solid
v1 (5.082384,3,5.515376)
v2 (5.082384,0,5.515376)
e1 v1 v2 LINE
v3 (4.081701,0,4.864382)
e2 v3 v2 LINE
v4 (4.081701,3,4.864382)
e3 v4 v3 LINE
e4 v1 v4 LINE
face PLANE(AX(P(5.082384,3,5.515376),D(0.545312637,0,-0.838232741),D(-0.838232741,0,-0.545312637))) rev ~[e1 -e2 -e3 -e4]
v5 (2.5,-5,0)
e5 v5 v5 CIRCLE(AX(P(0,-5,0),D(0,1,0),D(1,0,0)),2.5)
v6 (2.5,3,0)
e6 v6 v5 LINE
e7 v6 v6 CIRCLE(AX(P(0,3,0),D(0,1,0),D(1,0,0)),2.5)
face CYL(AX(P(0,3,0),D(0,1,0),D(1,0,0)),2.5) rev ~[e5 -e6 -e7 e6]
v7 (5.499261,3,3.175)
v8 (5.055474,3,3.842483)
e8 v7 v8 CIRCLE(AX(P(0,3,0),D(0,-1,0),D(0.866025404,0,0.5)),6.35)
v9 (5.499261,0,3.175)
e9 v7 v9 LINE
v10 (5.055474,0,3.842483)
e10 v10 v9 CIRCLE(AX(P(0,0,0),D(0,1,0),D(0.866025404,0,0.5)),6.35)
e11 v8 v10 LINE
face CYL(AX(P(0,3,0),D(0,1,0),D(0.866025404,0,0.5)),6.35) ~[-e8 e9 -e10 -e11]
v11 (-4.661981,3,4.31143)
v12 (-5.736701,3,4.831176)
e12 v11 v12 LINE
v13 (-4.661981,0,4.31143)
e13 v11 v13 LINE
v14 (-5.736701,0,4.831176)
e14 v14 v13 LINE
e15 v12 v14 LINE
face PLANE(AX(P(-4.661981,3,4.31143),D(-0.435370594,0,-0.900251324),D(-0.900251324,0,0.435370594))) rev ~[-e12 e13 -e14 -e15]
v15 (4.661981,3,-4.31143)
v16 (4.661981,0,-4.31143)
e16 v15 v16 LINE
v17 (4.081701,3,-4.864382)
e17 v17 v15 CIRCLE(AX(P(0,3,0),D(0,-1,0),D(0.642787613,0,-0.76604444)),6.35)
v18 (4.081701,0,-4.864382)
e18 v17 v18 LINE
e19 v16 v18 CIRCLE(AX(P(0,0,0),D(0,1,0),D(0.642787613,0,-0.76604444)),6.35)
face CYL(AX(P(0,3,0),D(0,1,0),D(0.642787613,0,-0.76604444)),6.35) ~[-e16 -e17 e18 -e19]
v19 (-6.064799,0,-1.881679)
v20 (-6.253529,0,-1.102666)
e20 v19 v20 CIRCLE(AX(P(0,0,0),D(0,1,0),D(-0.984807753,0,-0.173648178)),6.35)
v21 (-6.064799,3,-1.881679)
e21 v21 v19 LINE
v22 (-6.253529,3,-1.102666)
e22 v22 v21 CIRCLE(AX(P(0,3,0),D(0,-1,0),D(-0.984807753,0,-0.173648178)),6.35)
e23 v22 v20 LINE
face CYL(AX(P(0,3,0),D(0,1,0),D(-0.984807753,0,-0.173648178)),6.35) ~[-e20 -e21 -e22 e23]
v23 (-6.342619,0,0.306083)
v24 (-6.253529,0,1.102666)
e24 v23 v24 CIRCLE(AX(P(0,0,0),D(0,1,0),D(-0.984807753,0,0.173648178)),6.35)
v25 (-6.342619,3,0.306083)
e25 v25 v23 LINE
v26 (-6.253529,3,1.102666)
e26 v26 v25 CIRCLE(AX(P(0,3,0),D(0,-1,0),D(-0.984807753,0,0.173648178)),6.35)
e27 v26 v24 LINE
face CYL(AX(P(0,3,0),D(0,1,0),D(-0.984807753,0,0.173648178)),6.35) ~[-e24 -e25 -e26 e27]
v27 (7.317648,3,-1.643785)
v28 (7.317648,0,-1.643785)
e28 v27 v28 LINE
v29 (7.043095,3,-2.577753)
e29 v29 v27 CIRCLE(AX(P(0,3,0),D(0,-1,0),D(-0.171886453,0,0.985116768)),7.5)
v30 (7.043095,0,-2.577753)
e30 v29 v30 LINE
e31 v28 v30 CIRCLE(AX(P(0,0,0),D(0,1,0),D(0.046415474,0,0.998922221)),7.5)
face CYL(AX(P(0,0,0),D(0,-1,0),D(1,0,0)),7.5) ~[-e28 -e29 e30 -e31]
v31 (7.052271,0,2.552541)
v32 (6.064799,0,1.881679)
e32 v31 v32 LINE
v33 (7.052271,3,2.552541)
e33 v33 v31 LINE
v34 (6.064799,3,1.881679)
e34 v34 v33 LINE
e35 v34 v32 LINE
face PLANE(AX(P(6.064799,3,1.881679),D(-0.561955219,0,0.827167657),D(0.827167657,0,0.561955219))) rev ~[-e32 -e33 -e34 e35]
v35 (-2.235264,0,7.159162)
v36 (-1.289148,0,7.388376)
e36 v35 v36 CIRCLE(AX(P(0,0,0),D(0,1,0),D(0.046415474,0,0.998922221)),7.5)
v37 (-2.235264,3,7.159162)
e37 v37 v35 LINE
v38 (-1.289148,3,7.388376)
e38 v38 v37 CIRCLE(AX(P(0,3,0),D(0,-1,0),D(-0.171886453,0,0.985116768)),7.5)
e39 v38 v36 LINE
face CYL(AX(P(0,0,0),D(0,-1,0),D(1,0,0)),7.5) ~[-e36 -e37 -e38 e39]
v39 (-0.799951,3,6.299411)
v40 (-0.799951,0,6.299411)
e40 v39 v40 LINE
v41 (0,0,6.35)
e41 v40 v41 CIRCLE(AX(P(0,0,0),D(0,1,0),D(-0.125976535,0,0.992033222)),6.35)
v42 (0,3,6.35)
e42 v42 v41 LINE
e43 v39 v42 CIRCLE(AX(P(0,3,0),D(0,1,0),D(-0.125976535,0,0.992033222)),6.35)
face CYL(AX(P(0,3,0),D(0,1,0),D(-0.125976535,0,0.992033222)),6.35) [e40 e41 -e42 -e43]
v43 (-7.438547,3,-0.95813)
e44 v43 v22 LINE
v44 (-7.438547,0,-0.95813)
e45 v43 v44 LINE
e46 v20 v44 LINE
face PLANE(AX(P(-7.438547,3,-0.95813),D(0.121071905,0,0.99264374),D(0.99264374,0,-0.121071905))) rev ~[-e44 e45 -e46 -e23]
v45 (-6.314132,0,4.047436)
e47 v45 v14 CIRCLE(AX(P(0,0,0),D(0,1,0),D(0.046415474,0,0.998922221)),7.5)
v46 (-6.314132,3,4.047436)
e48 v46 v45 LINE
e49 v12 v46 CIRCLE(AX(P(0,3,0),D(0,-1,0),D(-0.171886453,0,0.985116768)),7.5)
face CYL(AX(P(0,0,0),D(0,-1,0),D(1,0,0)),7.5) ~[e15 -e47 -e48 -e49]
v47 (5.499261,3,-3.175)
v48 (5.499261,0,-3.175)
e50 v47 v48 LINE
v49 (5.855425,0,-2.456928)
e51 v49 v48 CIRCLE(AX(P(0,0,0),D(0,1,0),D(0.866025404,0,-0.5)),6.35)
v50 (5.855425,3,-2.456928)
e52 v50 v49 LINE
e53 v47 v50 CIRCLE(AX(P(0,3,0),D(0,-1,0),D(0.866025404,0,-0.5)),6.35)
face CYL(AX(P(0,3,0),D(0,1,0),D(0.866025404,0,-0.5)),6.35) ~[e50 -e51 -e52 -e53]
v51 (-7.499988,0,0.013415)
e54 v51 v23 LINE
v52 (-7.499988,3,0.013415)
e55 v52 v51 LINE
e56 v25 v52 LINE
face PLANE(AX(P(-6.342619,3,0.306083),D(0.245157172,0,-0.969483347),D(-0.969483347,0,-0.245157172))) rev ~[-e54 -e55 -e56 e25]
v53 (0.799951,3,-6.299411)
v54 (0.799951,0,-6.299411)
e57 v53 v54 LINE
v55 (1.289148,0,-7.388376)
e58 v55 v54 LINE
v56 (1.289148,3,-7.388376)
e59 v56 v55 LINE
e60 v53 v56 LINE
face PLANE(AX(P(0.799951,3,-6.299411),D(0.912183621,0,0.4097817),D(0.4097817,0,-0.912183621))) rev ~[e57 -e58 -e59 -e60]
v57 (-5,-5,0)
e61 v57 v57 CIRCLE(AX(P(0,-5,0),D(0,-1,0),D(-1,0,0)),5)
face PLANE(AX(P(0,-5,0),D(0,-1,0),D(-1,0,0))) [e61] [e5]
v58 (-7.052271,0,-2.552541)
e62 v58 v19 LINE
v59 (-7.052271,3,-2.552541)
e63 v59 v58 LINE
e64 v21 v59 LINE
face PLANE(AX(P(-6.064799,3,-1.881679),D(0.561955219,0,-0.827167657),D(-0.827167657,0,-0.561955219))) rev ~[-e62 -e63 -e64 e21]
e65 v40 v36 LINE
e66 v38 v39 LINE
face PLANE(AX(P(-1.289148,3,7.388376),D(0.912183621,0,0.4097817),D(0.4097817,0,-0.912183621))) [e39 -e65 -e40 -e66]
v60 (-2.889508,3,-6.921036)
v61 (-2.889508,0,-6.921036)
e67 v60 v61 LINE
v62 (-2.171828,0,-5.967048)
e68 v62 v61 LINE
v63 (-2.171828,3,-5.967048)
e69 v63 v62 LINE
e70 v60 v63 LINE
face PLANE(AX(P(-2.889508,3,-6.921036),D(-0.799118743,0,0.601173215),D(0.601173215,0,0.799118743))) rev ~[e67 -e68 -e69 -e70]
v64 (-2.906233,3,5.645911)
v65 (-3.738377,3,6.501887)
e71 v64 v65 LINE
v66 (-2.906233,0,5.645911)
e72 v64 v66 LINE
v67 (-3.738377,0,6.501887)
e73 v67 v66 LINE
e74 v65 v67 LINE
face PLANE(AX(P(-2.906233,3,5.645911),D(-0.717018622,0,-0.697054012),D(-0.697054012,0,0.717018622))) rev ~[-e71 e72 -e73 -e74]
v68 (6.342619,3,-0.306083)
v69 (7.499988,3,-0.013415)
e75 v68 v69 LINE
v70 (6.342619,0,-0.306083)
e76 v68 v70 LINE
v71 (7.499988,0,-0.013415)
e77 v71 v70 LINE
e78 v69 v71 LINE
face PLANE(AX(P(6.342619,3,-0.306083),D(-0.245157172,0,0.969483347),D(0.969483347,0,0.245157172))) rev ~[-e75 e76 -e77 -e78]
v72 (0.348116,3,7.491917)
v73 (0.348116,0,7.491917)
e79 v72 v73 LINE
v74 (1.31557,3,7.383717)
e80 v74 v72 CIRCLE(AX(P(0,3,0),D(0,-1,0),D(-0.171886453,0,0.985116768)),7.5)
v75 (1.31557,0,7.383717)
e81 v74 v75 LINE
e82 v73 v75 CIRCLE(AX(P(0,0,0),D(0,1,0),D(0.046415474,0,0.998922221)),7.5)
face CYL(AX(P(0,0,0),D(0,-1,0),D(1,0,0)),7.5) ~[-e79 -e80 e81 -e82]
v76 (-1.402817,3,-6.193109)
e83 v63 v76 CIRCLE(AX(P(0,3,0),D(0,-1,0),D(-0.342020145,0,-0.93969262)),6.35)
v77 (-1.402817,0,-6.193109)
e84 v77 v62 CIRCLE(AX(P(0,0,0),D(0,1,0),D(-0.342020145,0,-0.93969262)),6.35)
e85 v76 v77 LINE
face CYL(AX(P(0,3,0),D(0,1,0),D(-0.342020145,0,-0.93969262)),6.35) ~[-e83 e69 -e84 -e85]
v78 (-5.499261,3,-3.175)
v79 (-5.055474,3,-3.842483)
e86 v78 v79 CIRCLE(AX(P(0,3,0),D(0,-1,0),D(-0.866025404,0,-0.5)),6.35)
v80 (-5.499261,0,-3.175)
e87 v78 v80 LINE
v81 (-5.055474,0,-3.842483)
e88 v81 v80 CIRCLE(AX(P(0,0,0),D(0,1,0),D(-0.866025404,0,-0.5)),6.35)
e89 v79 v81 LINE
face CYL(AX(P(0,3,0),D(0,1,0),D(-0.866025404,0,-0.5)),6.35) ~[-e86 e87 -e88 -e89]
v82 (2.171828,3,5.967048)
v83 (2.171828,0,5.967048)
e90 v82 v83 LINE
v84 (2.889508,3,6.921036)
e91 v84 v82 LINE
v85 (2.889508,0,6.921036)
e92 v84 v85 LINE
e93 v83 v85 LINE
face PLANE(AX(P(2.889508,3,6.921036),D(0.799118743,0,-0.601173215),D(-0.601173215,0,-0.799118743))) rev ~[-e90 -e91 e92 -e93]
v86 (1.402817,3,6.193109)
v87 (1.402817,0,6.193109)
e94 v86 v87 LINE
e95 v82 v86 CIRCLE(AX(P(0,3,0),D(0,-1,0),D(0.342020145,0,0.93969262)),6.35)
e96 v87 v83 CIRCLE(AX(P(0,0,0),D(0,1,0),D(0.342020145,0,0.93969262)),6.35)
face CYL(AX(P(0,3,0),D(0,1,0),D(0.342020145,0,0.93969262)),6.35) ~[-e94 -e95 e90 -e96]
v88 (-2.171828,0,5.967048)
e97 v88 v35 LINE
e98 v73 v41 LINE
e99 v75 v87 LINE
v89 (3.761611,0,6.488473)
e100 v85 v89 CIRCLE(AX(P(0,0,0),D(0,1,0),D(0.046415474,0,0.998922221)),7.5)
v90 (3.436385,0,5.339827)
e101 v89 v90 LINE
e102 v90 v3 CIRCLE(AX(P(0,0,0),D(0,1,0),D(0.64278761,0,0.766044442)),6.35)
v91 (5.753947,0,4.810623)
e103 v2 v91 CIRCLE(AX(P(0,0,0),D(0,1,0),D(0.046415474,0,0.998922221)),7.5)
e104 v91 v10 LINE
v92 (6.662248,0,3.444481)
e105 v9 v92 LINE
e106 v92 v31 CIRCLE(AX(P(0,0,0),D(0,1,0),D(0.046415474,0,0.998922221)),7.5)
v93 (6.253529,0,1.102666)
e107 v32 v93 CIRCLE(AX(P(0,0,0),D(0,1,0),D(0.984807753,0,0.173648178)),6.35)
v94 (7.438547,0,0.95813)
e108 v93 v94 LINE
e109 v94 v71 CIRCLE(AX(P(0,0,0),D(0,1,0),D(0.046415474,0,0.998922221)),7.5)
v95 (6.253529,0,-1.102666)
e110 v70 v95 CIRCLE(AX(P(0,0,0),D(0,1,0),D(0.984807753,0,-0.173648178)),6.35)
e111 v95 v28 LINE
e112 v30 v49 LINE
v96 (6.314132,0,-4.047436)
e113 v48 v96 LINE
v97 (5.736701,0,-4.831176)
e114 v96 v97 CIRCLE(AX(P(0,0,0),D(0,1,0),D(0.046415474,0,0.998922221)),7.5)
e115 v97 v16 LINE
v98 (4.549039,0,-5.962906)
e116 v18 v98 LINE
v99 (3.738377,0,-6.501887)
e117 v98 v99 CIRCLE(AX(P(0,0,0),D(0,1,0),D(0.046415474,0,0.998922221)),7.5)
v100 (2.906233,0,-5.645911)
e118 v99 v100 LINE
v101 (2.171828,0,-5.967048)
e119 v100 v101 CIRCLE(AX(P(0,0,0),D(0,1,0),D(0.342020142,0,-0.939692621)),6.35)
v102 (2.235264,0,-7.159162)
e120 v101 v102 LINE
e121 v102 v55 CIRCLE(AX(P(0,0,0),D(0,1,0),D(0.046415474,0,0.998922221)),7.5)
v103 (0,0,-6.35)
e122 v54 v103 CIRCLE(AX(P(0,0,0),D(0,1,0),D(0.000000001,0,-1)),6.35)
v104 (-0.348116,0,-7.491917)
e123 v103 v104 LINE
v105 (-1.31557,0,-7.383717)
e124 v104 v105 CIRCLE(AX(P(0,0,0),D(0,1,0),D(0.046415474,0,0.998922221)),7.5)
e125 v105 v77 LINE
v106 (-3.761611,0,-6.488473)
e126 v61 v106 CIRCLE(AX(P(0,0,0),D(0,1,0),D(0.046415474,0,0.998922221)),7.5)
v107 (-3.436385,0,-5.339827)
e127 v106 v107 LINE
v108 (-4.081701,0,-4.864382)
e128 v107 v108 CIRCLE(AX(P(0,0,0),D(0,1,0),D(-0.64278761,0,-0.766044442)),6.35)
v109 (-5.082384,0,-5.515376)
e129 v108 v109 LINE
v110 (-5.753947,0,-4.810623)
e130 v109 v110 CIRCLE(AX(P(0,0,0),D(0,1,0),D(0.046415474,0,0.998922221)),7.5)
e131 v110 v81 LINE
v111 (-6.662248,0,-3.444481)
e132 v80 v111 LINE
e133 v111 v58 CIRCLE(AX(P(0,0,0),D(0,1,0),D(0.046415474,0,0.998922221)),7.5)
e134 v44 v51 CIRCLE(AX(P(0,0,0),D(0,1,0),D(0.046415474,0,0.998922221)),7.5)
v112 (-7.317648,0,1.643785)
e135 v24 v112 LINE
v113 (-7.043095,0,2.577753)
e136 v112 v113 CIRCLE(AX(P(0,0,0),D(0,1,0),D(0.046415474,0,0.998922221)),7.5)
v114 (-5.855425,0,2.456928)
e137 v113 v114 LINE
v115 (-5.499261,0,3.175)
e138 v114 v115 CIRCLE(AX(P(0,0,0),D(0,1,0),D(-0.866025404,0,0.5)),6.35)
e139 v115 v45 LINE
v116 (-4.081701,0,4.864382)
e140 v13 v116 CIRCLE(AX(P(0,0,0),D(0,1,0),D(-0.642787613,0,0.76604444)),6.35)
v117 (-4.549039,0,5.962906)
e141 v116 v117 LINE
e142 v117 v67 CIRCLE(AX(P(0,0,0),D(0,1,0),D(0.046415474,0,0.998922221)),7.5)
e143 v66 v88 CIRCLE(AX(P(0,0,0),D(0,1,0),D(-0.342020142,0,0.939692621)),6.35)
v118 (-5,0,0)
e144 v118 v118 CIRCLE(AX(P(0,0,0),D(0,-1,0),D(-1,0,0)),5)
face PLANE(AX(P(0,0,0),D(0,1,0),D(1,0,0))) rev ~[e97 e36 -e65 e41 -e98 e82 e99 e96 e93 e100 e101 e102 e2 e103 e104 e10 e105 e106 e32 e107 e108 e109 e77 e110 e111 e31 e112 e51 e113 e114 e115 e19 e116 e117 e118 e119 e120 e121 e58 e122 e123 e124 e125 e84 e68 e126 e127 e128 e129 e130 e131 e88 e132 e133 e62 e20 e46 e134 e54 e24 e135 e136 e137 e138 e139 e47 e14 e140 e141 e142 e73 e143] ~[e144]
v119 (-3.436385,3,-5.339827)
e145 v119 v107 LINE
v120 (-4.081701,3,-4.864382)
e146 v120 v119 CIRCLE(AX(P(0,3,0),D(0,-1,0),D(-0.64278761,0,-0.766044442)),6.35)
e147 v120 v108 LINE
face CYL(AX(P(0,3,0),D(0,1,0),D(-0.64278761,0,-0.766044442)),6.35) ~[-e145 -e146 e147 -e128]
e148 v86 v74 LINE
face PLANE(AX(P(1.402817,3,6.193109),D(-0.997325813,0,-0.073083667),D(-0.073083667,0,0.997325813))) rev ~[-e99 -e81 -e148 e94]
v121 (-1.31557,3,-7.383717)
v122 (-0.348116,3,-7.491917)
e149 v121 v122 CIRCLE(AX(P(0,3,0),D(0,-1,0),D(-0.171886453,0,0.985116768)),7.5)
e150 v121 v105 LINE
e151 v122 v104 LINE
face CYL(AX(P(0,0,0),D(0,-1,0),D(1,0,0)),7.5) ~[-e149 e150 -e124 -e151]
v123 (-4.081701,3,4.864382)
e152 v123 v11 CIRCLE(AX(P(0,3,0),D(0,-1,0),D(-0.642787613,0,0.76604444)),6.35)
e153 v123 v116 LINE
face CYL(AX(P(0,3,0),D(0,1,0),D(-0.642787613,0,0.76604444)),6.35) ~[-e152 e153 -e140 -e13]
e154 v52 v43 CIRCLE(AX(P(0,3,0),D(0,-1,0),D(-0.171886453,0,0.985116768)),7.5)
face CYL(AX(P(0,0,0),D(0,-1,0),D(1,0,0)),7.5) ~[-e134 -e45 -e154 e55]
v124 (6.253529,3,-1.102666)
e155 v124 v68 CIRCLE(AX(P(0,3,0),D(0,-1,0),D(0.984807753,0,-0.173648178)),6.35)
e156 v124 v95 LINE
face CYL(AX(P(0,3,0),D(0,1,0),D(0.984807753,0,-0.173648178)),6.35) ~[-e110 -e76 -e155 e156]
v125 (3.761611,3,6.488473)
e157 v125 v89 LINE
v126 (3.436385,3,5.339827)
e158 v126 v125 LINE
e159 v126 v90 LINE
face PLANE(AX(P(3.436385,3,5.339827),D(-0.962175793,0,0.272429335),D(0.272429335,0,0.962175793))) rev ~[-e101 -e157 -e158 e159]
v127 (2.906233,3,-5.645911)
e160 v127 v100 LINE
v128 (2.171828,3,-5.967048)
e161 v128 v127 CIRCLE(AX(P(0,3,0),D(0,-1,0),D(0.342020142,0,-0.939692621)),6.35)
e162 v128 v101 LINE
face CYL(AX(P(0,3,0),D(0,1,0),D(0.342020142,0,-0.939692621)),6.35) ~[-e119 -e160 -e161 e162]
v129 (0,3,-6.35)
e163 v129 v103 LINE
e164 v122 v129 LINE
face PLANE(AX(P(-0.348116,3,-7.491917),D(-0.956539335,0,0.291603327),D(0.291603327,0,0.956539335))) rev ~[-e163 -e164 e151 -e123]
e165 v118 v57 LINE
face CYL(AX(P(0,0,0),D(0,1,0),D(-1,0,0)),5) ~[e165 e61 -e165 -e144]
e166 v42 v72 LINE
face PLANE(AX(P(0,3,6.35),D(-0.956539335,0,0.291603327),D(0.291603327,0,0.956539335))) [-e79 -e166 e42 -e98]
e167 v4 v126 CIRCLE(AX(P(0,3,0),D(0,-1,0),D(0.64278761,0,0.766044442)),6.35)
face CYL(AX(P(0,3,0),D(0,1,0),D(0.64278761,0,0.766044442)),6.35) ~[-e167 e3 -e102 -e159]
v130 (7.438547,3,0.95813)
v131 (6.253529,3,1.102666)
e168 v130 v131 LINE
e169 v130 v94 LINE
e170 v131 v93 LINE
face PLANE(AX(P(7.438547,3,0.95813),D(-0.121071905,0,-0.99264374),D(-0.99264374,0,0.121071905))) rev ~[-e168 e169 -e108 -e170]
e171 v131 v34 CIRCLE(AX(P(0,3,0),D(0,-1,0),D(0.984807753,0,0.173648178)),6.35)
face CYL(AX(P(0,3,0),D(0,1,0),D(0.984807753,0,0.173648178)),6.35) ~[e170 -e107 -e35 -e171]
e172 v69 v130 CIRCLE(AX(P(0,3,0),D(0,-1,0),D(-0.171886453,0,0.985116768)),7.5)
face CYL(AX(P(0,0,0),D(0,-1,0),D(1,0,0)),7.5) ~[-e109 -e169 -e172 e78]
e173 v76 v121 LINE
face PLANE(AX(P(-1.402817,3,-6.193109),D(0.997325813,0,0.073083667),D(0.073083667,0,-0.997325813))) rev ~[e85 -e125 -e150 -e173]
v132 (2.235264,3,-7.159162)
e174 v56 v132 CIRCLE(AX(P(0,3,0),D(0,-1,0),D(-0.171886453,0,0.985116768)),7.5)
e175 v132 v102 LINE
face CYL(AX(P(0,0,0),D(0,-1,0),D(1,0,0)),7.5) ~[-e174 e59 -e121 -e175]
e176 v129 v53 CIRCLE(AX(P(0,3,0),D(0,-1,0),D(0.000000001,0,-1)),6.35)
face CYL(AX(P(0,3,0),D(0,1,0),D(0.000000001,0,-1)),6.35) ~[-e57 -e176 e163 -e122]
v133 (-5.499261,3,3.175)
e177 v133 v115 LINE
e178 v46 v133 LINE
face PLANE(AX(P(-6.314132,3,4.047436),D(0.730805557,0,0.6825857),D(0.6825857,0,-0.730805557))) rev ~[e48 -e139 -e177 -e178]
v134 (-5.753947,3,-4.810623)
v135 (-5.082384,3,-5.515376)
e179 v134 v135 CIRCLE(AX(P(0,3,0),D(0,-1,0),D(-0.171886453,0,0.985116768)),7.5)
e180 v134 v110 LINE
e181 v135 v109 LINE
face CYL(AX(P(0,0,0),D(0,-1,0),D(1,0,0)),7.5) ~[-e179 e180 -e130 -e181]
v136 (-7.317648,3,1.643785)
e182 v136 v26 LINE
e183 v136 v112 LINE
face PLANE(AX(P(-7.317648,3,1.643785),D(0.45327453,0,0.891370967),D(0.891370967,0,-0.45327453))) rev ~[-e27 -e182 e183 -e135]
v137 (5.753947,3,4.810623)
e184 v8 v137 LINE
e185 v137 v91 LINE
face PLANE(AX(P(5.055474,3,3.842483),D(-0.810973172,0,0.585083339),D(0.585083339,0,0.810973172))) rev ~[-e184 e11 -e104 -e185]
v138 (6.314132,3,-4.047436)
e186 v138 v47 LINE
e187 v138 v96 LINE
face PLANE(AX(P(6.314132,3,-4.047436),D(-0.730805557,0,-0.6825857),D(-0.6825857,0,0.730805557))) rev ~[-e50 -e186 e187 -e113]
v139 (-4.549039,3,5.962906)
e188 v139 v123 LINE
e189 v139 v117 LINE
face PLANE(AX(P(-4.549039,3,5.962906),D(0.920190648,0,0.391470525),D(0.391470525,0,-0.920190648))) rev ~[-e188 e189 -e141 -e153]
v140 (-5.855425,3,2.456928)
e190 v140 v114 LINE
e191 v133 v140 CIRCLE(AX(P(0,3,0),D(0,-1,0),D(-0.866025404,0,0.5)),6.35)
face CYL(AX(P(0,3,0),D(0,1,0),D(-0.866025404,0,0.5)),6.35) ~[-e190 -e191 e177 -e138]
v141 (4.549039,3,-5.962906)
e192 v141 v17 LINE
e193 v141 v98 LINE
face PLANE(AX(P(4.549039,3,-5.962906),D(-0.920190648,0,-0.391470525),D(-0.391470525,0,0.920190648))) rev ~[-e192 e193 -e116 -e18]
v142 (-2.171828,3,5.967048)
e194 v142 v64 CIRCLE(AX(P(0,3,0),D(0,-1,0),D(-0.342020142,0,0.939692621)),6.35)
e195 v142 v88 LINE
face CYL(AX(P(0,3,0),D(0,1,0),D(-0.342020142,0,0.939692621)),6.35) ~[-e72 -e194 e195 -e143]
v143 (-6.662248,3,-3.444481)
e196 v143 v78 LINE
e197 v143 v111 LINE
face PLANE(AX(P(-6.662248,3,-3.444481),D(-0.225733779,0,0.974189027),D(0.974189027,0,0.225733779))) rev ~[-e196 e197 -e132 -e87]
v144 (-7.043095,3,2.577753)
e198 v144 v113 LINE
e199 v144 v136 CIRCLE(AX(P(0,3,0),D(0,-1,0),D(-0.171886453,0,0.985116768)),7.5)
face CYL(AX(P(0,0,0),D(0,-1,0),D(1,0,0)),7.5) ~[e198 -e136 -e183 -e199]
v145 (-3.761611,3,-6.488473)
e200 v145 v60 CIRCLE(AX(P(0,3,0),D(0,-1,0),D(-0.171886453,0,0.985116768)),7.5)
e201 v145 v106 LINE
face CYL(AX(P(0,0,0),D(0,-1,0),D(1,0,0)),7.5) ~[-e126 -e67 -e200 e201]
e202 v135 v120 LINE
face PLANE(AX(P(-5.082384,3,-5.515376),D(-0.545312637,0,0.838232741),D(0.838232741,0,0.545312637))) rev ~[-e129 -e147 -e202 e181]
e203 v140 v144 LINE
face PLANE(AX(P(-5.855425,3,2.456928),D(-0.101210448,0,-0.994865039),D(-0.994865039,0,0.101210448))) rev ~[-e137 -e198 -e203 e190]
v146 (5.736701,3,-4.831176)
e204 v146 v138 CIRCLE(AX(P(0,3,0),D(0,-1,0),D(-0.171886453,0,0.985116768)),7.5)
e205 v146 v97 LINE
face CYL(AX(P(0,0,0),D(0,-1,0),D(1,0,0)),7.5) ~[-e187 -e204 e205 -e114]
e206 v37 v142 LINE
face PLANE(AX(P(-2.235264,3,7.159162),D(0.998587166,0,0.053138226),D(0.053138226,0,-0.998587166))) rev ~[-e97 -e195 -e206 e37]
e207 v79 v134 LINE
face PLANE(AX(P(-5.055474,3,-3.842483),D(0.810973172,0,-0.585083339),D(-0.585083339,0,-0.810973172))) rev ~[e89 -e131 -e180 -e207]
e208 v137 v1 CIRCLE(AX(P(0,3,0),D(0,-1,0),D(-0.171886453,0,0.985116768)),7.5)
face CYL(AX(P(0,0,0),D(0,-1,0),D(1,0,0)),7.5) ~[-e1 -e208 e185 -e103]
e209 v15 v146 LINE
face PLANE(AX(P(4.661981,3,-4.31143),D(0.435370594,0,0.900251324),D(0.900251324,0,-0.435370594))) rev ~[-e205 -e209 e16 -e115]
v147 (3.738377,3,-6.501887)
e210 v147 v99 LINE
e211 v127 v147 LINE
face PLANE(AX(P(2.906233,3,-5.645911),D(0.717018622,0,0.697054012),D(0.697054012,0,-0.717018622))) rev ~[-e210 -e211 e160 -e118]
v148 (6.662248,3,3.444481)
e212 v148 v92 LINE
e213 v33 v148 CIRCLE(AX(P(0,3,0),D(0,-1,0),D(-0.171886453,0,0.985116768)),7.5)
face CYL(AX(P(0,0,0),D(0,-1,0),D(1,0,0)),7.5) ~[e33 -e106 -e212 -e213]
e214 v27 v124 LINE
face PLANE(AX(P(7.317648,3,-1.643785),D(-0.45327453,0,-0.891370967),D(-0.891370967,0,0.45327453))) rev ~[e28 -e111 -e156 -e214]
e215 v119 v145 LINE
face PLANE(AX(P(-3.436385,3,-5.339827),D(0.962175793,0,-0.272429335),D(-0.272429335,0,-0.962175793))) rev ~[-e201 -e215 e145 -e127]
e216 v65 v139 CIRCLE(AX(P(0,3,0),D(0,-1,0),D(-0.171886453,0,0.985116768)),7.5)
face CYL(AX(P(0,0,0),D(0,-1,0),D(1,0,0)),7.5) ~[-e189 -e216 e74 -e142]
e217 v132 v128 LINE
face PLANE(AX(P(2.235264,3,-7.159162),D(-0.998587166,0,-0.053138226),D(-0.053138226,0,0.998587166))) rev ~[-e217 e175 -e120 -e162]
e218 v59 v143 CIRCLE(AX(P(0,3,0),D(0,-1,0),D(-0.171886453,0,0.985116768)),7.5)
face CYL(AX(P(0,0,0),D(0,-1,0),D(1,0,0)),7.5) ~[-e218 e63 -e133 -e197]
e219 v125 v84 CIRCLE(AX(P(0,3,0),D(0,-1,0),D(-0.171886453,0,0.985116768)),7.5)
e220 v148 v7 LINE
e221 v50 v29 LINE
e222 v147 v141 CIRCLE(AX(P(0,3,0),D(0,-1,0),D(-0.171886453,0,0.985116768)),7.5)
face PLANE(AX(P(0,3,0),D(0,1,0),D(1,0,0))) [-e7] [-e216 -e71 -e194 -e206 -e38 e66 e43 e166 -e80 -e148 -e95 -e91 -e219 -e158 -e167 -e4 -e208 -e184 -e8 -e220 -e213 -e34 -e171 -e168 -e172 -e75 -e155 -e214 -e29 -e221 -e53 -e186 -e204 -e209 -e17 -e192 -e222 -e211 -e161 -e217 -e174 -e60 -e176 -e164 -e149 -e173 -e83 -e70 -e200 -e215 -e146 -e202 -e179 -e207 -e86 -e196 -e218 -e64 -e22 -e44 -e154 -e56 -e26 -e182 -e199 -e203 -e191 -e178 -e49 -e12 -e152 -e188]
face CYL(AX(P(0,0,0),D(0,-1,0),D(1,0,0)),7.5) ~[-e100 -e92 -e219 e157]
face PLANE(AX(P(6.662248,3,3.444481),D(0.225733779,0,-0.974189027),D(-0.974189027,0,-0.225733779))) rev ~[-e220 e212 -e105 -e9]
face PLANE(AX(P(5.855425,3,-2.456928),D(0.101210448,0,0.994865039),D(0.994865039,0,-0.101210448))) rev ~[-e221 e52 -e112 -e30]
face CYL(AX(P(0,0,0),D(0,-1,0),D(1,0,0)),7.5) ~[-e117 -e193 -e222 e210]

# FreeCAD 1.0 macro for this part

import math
import FreeCAD as App
import Part
import Sketcher
Q = App.Units.Quantity

doc = App.newDocument("Part")
body = doc.addObject("PartDesign::Body", "Body")

sketch1 = body.newObject("Sketcher::SketchObject", "Sketch")
sketch1.AttachmentSupport = (doc.getObject("XZ_Plane"), [""])
sketch1.MapMode = "FlatFace"
sketch1.addGeometry(Part.Circle(App.Vector(0, 0, 0), App.Vector(0, 0, 1), 7.5), False)
sketch1.addConstraint([
    Sketcher.Constraint("Coincident", 0, 3, -1, 1),
    Sketcher.Constraint("Diameter", 0, Q("15 mm")),
])
pad1 = body.newObject("PartDesign::Pad", "Pad")
pad1.Profile = sketch1
pad1.Length = 3
pad1.Reversed = True

sketch2 = body.newObject("Sketcher::SketchObject", "Sketch001")
sketch2.AttachmentSupport = (doc.getObject("XZ_Plane"), [""])
sketch2.MapMode = "FlatFace"
sketch2.addGeometry(Part.Circle(App.Vector(0, 0, 0), App.Vector(0, 0, 1), 5), False)
sketch2.addConstraint([
    Sketcher.Constraint("Coincident", 0, 3, -1, 1),
    Sketcher.Constraint("Diameter", 0, Q("10 mm")),
])
pad2 = body.newObject("PartDesign::Pad", "Pad001")
pad2.Profile = sketch2
pad2.Length = 5

sketch3 = body.newObject("Sketcher::SketchObject", "Sketch002")
sketch3.AttachmentSupport = (doc.getObject("XZ_Plane"), [""])
sketch3.MapMode = "FlatFace"
sketch3.AttachmentOffset = App.Placement(App.Vector(0, 0, -3), App.Rotation())
sketch3.addGeometry(Part.Circle(App.Vector(0, 0, 0), App.Vector(0, 0, 1), 2.5), False)
sketch3.addConstraint([
    Sketcher.Constraint("Coincident", 0, 3, -1, 1),
    Sketcher.Constraint("Diameter", 0, Q("5 mm")),
])
pocket1 = body.newObject("PartDesign::Pocket", "Pocket")
pocket1.Profile = sketch3
pocket1.Type = "UpToFirst"
pocket1.Reversed = True

sketch4 = body.newObject("Sketcher::SketchObject", "Sketch003")
sketch4.AttachmentSupport = (doc.getObject("XZ_Plane"), [""])
sketch4.MapMode = "FlatFace"
sketch4.AttachmentOffset = App.Placement(App.Vector(0, 0, -3), App.Rotation())
sketch4.addGeometry([
    Part.LineSegment(App.Vector(-0.799951, 6.299411, 0), App.Vector(-1.289148, 7.388376, 0)),
    Part.ArcOfCircle(Part.Circle(App.Vector(0, 0, 0), App.Vector(0, 0, 1), 7.5), math.radians(87.339633), math.radians(99.89752)),
    Part.LineSegment(App.Vector(0.348116, 7.491917, 0), App.Vector(0, 6.35, 0)),
    Part.ArcOfCircle(Part.Circle(App.Vector(0, 0, 0), App.Vector(0, 0, 1), 6.35), math.radians(90), math.radians(97.237153)),
], False)
sketch4.addConstraint([
    Sketcher.Constraint("Coincident", 0, 2, 1, 2),
    Sketcher.Constraint("Coincident", 1, 1, 2, 1),
    Sketcher.Constraint("Coincident", 2, 2, 3, 1),
    Sketcher.Constraint("Coincident", 3, 2, 0, 1),
    Sketcher.Constraint("Coincident", 1, 3, -1, 1),
    Sketcher.Constraint("Coincident", 3, 3, -1, 1),
    Sketcher.Constraint("PointOnObject", 2, 2, -2),
    Sketcher.Constraint("Equal", 0, 2),
    Sketcher.Constraint("Radius", 1, Q("7.5 mm")),
    Sketcher.Constraint("Radius", 3, Q("6.35 mm")),
    Sketcher.Constraint("Distance", 0, Q("1.1938 mm")),
    Sketcher.Constraint("DistanceX", 0, 2, -1, 1, Q("1.289148 mm")),
])
pocket2 = body.newObject("PartDesign::Pocket", "Pocket001")
pocket2.Profile = sketch4
pocket2.Type = "UpToFirst"
pocket2.Reversed = True

sketch5 = body.newObject("Sketcher::SketchObject", "Sketch004")
sketch5.AttachmentSupport = (doc.getObject("XZ_Plane"), [""])
sketch5.MapMode = "FlatFace"
sketch5.AttachmentOffset = App.Placement(App.Vector(0, 0, -3), App.Rotation())
sketch5.addGeometry([
    Part.LineSegment(App.Vector(-2.235264, 7.159162, 0), App.Vector(-2.171828, 5.967048, 0)),
    Part.ArcOfCircle(Part.Circle(App.Vector(0, 0, 0), App.Vector(0, 0, 1), 6.35), math.radians(110), math.radians(117.237153)),
    Part.LineSegment(App.Vector(-2.906233, 5.645911, 0), App.Vector(-3.738377, 6.501887, 0)),
    Part.ArcOfCircle(Part.Circle(App.Vector(0, 0, 0), App.Vector(0, 0, 1), 7.5), math.radians(107.339633), math.radians(119.89752)),
], False)
sketch5.addConstraint([
    Sketcher.Constraint("Coincident", 0, 2, 1, 1),
    Sketcher.Constraint("Coincident", 1, 2, 2, 1),
    Sketcher.Constraint("Coincident", 2, 2, 3, 2),
    Sketcher.Constraint("Coincident", 3, 1, 0, 1),
    Sketcher.Constraint("Coincident", 1, 3, -1, 1),
    Sketcher.Constraint("Coincident", 3, 3, -1, 1),
    Sketcher.Constraint("Equal", 0, 2),
    Sketcher.Constraint("Radius", 3, Q("7.5 mm")),
    Sketcher.Constraint("Radius", 1, Q("6.35 mm")),
    Sketcher.Constraint("Distance", 0, Q("1.1938 mm")),
    Sketcher.Constraint("DistanceY", -1, 1, 0, 2, Q("5.967048 mm")),
    Sketcher.Constraint("DistanceY", -1, 1, 1, 2, Q("5.645911 mm")),
])
pocket3 = body.newObject("PartDesign::Pocket", "Pocket002")
pocket3.Profile = sketch5
pocket3.Type = "UpToFirst"
pocket3.Reversed = True

sketch6 = body.newObject("Sketcher::SketchObject", "Sketch005")
sketch6.AttachmentSupport = (doc.getObject("XZ_Plane"), [""])
sketch6.MapMode = "FlatFace"
sketch6.AttachmentOffset = App.Placement(App.Vector(0, 0, -3), App.Rotation())
sketch6.addGeometry([
    Part.LineSegment(App.Vector(-4.549039, 5.962906, 0), App.Vector(-4.081701, 4.864382, 0)),
    Part.ArcOfCircle(Part.Circle(App.Vector(0, 0, 0), App.Vector(0, 0, 1), 6.35), math.radians(130), math.radians(137.237153)),
    Part.LineSegment(App.Vector(-4.661981, 4.31143, 0), App.Vector(-5.736701, 4.831176, 0)),
    Part.ArcOfCircle(Part.Circle(App.Vector(0, 0, 0), App.Vector(0, 0, 1), 7.5), math.radians(127.339634), math.radians(139.897519)),
], False)
sketch6.addConstraint([
    Sketcher.Constraint("Coincident", 0, 2, 1, 1),
    Sketcher.Constraint("Coincident", 1, 2, 2, 1),
    Sketcher.Constraint("Coincident", 2, 2, 3, 2),
    Sketcher.Constraint("Coincident", 3, 1, 0, 1),
    Sketcher.Constraint("Coincident", 1, 3, -1, 1),
    Sketcher.Constraint("Coincident", 3, 3, -1, 1),
    Sketcher.Constraint("Equal", 0, 2),
    Sketcher.Constraint("Radius", 3, Q("7.5 mm")),
    Sketcher.Constraint("Radius", 1, Q("6.35 mm")),
    Sketcher.Constraint("DistanceX", 2, 2, 0, 2, Q("1.655 mm")),
    Sketcher.Constraint("Distance", 0, Q("1.1938 mm")),
    Sketcher.Constraint("DistanceX", 0, 2, -1, 1, Q("4.081701 mm")),
])
pocket4 = body.newObject("PartDesign::Pocket", "Pocket003")
pocket4.Profile = sketch6
pocket4.Type = "UpToFirst"
pocket4.Reversed = True

sketch7 = body.newObject("Sketcher::SketchObject", "Sketch006")
sketch7.AttachmentSupport = (doc.getObject("XZ_Plane"), [""])
sketch7.MapMode = "FlatFace"
sketch7.AttachmentOffset = App.Placement(App.Vector(0, 0, -3), App.Rotation())
sketch7.addGeometry([
    Part.LineSegment(App.Vector(-6.314132, 4.047436, 0), App.Vector(-5.499261, 3.175, 0)),
    Part.ArcOfCircle(Part.Circle(App.Vector(0, 0, 0), App.Vector(0, 0, 1), 6.35), math.radians(150), math.radians(157.237153)),
    Part.LineSegment(App.Vector(-5.855425, 2.456928, 0), App.Vector(-7.043095, 2.577753, 0)),
    Part.ArcOfCircle(Part.Circle(App.Vector(0, 0, 0), App.Vector(0, 0, 1), 7.5), math.radians(147.339633), math.radians(159.89752)),
], False)
sketch7.addConstraint([
    Sketcher.Constraint("Coincident", 0, 2, 1, 1),
    Sketcher.Constraint("Coincident", 1, 2, 2, 1),
    Sketcher.Constraint("Coincident", 2, 2, 3, 2),
    Sketcher.Constraint("Coincident", 3, 1, 0, 1),
    Sketcher.Constraint("Coincident", 1, 3, -1, 1),
    Sketcher.Constraint("Coincident", 3, 3, -1, 1),
    Sketcher.Constraint("Equal", 0, 2),
    Sketcher.Constraint("Radius", 3, Q("7.5 mm")),
    Sketcher.Constraint("Radius", 1, Q("6.35 mm")),
    Sketcher.Constraint("DistanceY", -1, 1, 0, 2, Q("3.175 mm")),
    Sketcher.Constraint("Distance", 0, Q("1.1938 mm")),
    Sketcher.Constraint("DistanceX", 2, 2, 1, 2, Q("1.18767 mm")),
])
pocket5 = body.newObject("PartDesign::Pocket", "Pocket004")
pocket5.Profile = sketch7
pocket5.Type = "UpToFirst"
pocket5.Reversed = True

sketch8 = body.newObject("Sketcher::SketchObject", "Sketch007")
sketch8.AttachmentSupport = (doc.getObject("XZ_Plane"), [""])
sketch8.MapMode = "FlatFace"
sketch8.AttachmentOffset = App.Placement(App.Vector(0, 0, -3), App.Rotation())
sketch8.addGeometry([
    Part.LineSegment(App.Vector(-7.317648, 1.643785, 0), App.Vector(-6.253529, 1.102666, 0)),
    Part.ArcOfCircle(Part.Circle(App.Vector(0, 0, 0), App.Vector(0, 0, 1), 6.35), math.radians(170), math.radians(177.237153)),
    Part.LineSegment(App.Vector(-6.342619, 0.306083, 0), App.Vector(-7.499988, 0.013415, 0)),
    Part.ArcOfCircle(Part.Circle(App.Vector(0, 0, 0), App.Vector(0, 0, 1), 7.5), math.radians(167.339633), math.radians(179.89752)),
], False)
sketch8.addConstraint([
    Sketcher.Constraint("Coincident", 0, 2, 1, 1),
    Sketcher.Constraint("Coincident", 1, 2, 2, 1),
    Sketcher.Constraint("Coincident", 2, 2, 3, 2),
    Sketcher.Constraint("Coincident", 3, 1, 0, 1),
    Sketcher.Constraint("Coincident", 1, 3, -1, 1),
    Sketcher.Constraint("Coincident", 3, 3, -1, 1),
    Sketcher.Constraint("Equal", 0, 2),
    Sketcher.Constraint("Radius", 3, Q("7.5 mm")),
    Sketcher.Constraint("Radius", 1, Q("6.35 mm")),
    Sketcher.Constraint("Distance", 0, Q("1.1938 mm")),
    Sketcher.Constraint("DistanceY", 1, 2, 3, 1, Q("1.337702 mm")),
    Sketcher.Constraint("DistanceX", 0, 2, -1, 1, Q("6.253529 mm")),
])
pocket6 = body.newObject("PartDesign::Pocket", "Pocket005")
pocket6.Profile = sketch8
pocket6.Type = "UpToFirst"
pocket6.Reversed = True

sketch9 = body.newObject("Sketcher::SketchObject", "Sketch008")
sketch9.AttachmentSupport = (doc.getObject("XZ_Plane"), [""])
sketch9.MapMode = "FlatFace"
sketch9.AttachmentOffset = App.Placement(App.Vector(0, 0, -3), App.Rotation())
sketch9.addGeometry([
    Part.LineSegment(App.Vector(-7.438547, -0.95813, 0), App.Vector(-6.253529, -1.102666, 0)),
    Part.ArcOfCircle(Part.Circle(App.Vector(0, 0, 0), App.Vector(0, 0, 1), 6.35), math.radians(-170), math.radians(-162.762847)),
    Part.LineSegment(App.Vector(-6.064799, -1.881679, 0), App.Vector(-7.052271, -2.552541, 0)),
    Part.ArcOfCircle(Part.Circle(App.Vector(0, 0, 0), App.Vector(0, 0, 1), 7.5), math.radians(-172.660367), math.radians(-160.10248)),
], False)
sketch9.addConstraint([
    Sketcher.Constraint("Coincident", 0, 2, 1, 1),
    Sketcher.Constraint("Coincident", 1, 2, 2, 1),
    Sketcher.Constraint("Coincident", 2, 2, 3, 2),
    Sketcher.Constraint("Coincident", 3, 1, 0, 1),
    Sketcher.Constraint("Coincident", 1, 3, -1, 1),
    Sketcher.Constraint("Coincident", 3, 3, -1, 1),
    Sketcher.Constraint("Equal", 0, 2),
    Sketcher.Constraint("Radius", 3, Q("7.5 mm")),
    Sketcher.Constraint("Radius", 1, Q("6.35 mm")),
    Sketcher.Constraint("Distance", 0, Q("1.1938 mm")),
    Sketcher.Constraint("DistanceX", 1, 2, -1, 1, Q("6.064799 mm")),
    Sketcher.Constraint("DistanceX", 0, 2, -1, 1, Q("6.253529 mm")),
])
pocket7 = body.newObject("PartDesign::Pocket", "Pocket006")
pocket7.Profile = sketch9
pocket7.Type = "UpToFirst"
pocket7.Reversed = True

sketch10 = body.newObject("Sketcher::SketchObject", "Sketch009")
sketch10.AttachmentSupport = (doc.getObject("XZ_Plane"), [""])
sketch10.MapMode = "FlatFace"
sketch10.AttachmentOffset = App.Placement(App.Vector(0, 0, -3), App.Rotation())
sketch10.addGeometry([
    Part.LineSegment(App.Vector(-6.662248, -3.444481, 0), App.Vector(-5.499261, -3.175, 0)),
    Part.ArcOfCircle(Part.Circle(App.Vector(0, 0, 0), App.Vector(0, 0, 1), 6.35), math.radians(-150), math.radians(-142.762847)),
    Part.LineSegment(App.Vector(-5.055474, -3.842483, 0), App.Vector(-5.753947, -4.810623, 0)),
    Part.ArcOfCircle(Part.Circle(App.Vector(0, 0, 0), App.Vector(0, 0, 1), 7.5), math.radians(-152.660367), math.radians(-140.10248)),
], False)
sketch10.addConstraint([
    Sketcher.Constraint("Coincident", 0, 2, 1, 1),
    Sketcher.Constraint("Coincident", 1, 2, 2, 1),
    Sketcher.Constraint("Coincident", 2, 2, 3, 2),
    Sketcher.Constraint("Coincident", 3, 1, 0, 1),
    Sketcher.Constraint("Coincident", 1, 3, -1, 1),
    Sketcher.Constraint("Coincident", 3, 3, -1, 1),
    Sketcher.Constraint("Equal", 0, 2),
    Sketcher.Constraint("Radius", 3, Q("7.5 mm")),
    Sketcher.Constraint("Radius", 1, Q("6.35 mm")),
    Sketcher.Constraint("DistanceY", 0, 2, -1, 1, Q("3.175 mm")),
    Sketcher.Constraint("Distance", 0, Q("1.1938 mm")),
    Sketcher.Constraint("DistanceX", 3, 1, 2, 2, Q("0.908301 mm")),
])
pocket8 = body.newObject("PartDesign::Pocket", "Pocket007")
pocket8.Profile = sketch10
pocket8.Type = "UpToFirst"
pocket8.Reversed = True

sketch11 = body.newObject("Sketcher::SketchObject", "Sketch010")
sketch11.AttachmentSupport = (doc.getObject("XZ_Plane"), [""])
sketch11.MapMode = "FlatFace"
sketch11.AttachmentOffset = App.Placement(App.Vector(0, 0, -3), App.Rotation())
sketch11.addGeometry([
    Part.LineSegment(App.Vector(-5.082384, -5.515376, 0), App.Vector(-4.081701, -4.864382, 0)),
    Part.ArcOfCircle(Part.Circle(App.Vector(0, 0, 0), App.Vector(0, 0, 1), 6.35), math.radians(-130), math.radians(-122.762847)),
    Part.LineSegment(App.Vector(-3.436385, -5.339827, 0), App.Vector(-3.761611, -6.488473, 0)),
    Part.ArcOfCircle(Part.Circle(App.Vector(0, 0, 0), App.Vector(0, 0, 1), 7.5), math.radians(-132.660367), math.radians(-120.10248)),
], False)
sketch11.addConstraint([
    Sketcher.Constraint("Coincident", 0, 2, 1, 1),
    Sketcher.Constraint("Coincident", 1, 2, 2, 1),
    Sketcher.Constraint("Coincident", 2, 2, 3, 2),
    Sketcher.Constraint("Coincident", 3, 1, 0, 1),
    Sketcher.Constraint("Coincident", 1, 3, -1, 1),
    Sketcher.Constraint("Coincident", 3, 3, -1, 1),
    Sketcher.Constraint("Equal", 0, 2),
    Sketcher.Constraint("Radius", 3, Q("7.5 mm")),
    Sketcher.Constraint("Radius", 1, Q("6.35 mm")),
    Sketcher.Constraint("DistanceX", 3, 1, 1, 2, Q("1.645998 mm")),
    Sketcher.Constraint("Distance", 0, Q("1.1938 mm")),
    Sketcher.Constraint("DistanceX", 0, 2, -1, 1, Q("4.081701 mm")),
])
pocket9 = body.newObject("PartDesign::Pocket", "Pocket008")
pocket9.Profile = sketch11
pocket9.Type = "UpToFirst"
pocket9.Reversed = True

sketch12 = body.newObject("Sketcher::SketchObject", "Sketch011")
sketch12.AttachmentSupport = (doc.getObject("XZ_Plane"), [""])
sketch12.MapMode = "FlatFace"
sketch12.AttachmentOffset = App.Placement(App.Vector(0, 0, -3), App.Rotation())
sketch12.addGeometry([
    Part.LineSegment(App.Vector(-2.889508, -6.921036, 0), App.Vector(-2.171828, -5.967048, 0)),
    Part.ArcOfCircle(Part.Circle(App.Vector(0, 0, 0), App.Vector(0, 0, 1), 6.35), math.radians(-110), math.radians(-102.762847)),
    Part.LineSegment(App.Vector(-1.402817, -6.193109, 0), App.Vector(-1.31557, -7.383717, 0)),
    Part.ArcOfCircle(Part.Circle(App.Vector(0, 0, 0), App.Vector(0, 0, 1), 7.5), math.radians(-112.660367), math.radians(-100.10248)),
], False)
sketch12.addConstraint([
    Sketcher.Constraint("Coincident", 0, 2, 1, 1),
    Sketcher.Constraint("Coincident", 1, 2, 2, 1),
    Sketcher.Constraint("Coincident", 2, 2, 3, 2),
    Sketcher.Constraint("Coincident", 3, 1, 0, 1),
    Sketcher.Constraint("Coincident", 1, 3, -1, 1),
    Sketcher.Constraint("Coincident", 3, 3, -1, 1),
    Sketcher.Constraint("Equal", 0, 2),
    Sketcher.Constraint("Radius", 3, Q("7.5 mm")),
    Sketcher.Constraint("Radius", 1, Q("6.35 mm")),
    Sketcher.Constraint("Distance", 0, Q("1.1938 mm")),
    Sketcher.Constraint("DistanceY", 0, 2, -1, 1, Q("5.967048 mm")),
    Sketcher.Constraint("DistanceY", 1, 2, -1, 1, Q("6.193109 mm")),
])
pocket10 = body.newObject("PartDesign::Pocket", "Pocket009")
pocket10.Profile = sketch12
pocket10.Type = "UpToFirst"
pocket10.Reversed = True

sketch13 = body.newObject("Sketcher::SketchObject", "Sketch012")
sketch13.AttachmentSupport = (doc.getObject("XZ_Plane"), [""])
sketch13.MapMode = "FlatFace"
sketch13.AttachmentOffset = App.Placement(App.Vector(0, 0, -3), App.Rotation())
sketch13.addGeometry([
    Part.LineSegment(App.Vector(-0.348116, -7.491917, 0), App.Vector(0, -6.35, 0)),
    Part.ArcOfCircle(Part.Circle(App.Vector(0, 0, 0), App.Vector(0, 0, 1), 6.35), math.radians(-90), math.radians(-82.762847)),
    Part.LineSegment(App.Vector(0.799951, -6.299411, 0), App.Vector(1.289148, -7.388376, 0)),
    Part.ArcOfCircle(Part.Circle(App.Vector(0, 0, 0), App.Vector(0, 0, 1), 7.5), math.radians(-92.660367), math.radians(-80.10248)),
], False)
sketch13.addConstraint([
    Sketcher.Constraint("Coincident", 0, 2, 1, 1),
    Sketcher.Constraint("Coincident", 1, 2, 2, 1),
    Sketcher.Constraint("Coincident", 2, 2, 3, 2),
    Sketcher.Constraint("Coincident", 3, 1, 0, 1),
    Sketcher.Constraint("Coincident", 1, 3, -1, 1),
    Sketcher.Constraint("Coincident", 3, 3, -1, 1),
    Sketcher.Constraint("PointOnObject", 0, 2, -2),
    Sketcher.Constraint("Equal", 0, 2),
    Sketcher.Constraint("Radius", 3, Q("7.5 mm")),
    Sketcher.Constraint("Radius", 1, Q("6.35 mm")),
    Sketcher.Constraint("Distance", 0, Q("1.1938 mm")),
    Sketcher.Constraint("DistanceX", -1, 1, 1, 2, Q("0.799951 mm")),
])
pocket11 = body.newObject("PartDesign::Pocket", "Pocket010")
pocket11.Profile = sketch13
pocket11.Type = "UpToFirst"
pocket11.Reversed = True

sketch14 = body.newObject("Sketcher::SketchObject", "Sketch013")
sketch14.AttachmentSupport = (doc.getObject("XZ_Plane"), [""])
sketch14.MapMode = "FlatFace"
sketch14.AttachmentOffset = App.Placement(App.Vector(0, 0, -3), App.Rotation())
sketch14.addGeometry([
    Part.LineSegment(App.Vector(2.235264, -7.159162, 0), App.Vector(2.171828, -5.967048, 0)),
    Part.ArcOfCircle(Part.Circle(App.Vector(0, 0, 0), App.Vector(0, 0, 1), 6.35), math.radians(-70), math.radians(-62.762847)),
    Part.LineSegment(App.Vector(2.906233, -5.645911, 0), App.Vector(3.738377, -6.501887, 0)),
    Part.ArcOfCircle(Part.Circle(App.Vector(0, 0, 0), App.Vector(0, 0, 1), 7.5), math.radians(-72.660367), math.radians(-60.10248)),
], False)
sketch14.addConstraint([
    Sketcher.Constraint("Coincident", 0, 2, 1, 1),
    Sketcher.Constraint("Coincident", 1, 2, 2, 1),
    Sketcher.Constraint("Coincident", 2, 2, 3, 2),
    Sketcher.Constraint("Coincident", 3, 1, 0, 1),
    Sketcher.Constraint("Coincident", 1, 3, -1, 1),
    Sketcher.Constraint("Coincident", 3, 3, -1, 1),
    Sketcher.Constraint("Equal", 0, 2),
    Sketcher.Constraint("Radius", 3, Q("7.5 mm")),
    Sketcher.Constraint("Radius", 1, Q("6.35 mm")),
    Sketcher.Constraint("Distance", 0, Q("1.1938 mm")),
    Sketcher.Constraint("DistanceY", 0, 2, -1, 1, Q("5.967048 mm")),
    Sketcher.Constraint("DistanceY", 1, 2, -1, 1, Q("5.645911 mm")),
])
pocket12 = body.newObject("PartDesign::Pocket", "Pocket011")
pocket12.Profile = sketch14
pocket12.Type = "UpToFirst"
pocket12.Reversed = True

sketch15 = body.newObject("Sketcher::SketchObject", "Sketch014")
sketch15.AttachmentSupport = (doc.getObject("XZ_Plane"), [""])
sketch15.MapMode = "FlatFace"
sketch15.AttachmentOffset = App.Placement(App.Vector(0, 0, -3), App.Rotation())
sketch15.addGeometry([
    Part.LineSegment(App.Vector(4.549039, -5.962906, 0), App.Vector(4.081701, -4.864382, 0)),
    Part.ArcOfCircle(Part.Circle(App.Vector(0, 0, 0), App.Vector(0, 0, 1), 6.35), math.radians(-50), math.radians(-42.762847)),
    Part.LineSegment(App.Vector(4.661981, -4.31143, 0), App.Vector(5.736701, -4.831176, 0)),
    Part.ArcOfCircle(Part.Circle(App.Vector(0, 0, 0), App.Vector(0, 0, 1), 7.5), math.radians(-52.660366), math.radians(-40.102481)),
], False)
sketch15.addConstraint([
    Sketcher.Constraint("Coincident", 0, 2, 1, 1),
    Sketcher.Constraint("Coincident", 1, 2, 2, 1),
    Sketcher.Constraint("Coincident", 2, 2, 3, 2),
    Sketcher.Constraint("Coincident", 3, 1, 0, 1),
    Sketcher.Constraint("Coincident", 1, 3, -1, 1),
    Sketcher.Constraint("Coincident", 3, 3, -1, 1),
    Sketcher.Constraint("Equal", 0, 2),
    Sketcher.Constraint("Radius", 3, Q("7.5 mm")),
    Sketcher.Constraint("Radius", 1, Q("6.35 mm")),
    Sketcher.Constraint("DistanceX", 0, 2, 2, 2, Q("1.655 mm")),
    Sketcher.Constraint("Distance", 0, Q("1.1938 mm")),
    Sketcher.Constraint("DistanceX", -1, 1, 0, 2, Q("4.081701 mm")),
])
pocket13 = body.newObject("PartDesign::Pocket", "Pocket012")
pocket13.Profile = sketch15
pocket13.Type = "UpToFirst"
pocket13.Reversed = True

sketch16 = body.newObject("Sketcher::SketchObject", "Sketch015")
sketch16.AttachmentSupport = (doc.getObject("XZ_Plane"), [""])
sketch16.MapMode = "FlatFace"
sketch16.AttachmentOffset = App.Placement(App.Vector(0, 0, -3), App.Rotation())
sketch16.addGeometry([
    Part.LineSegment(App.Vector(6.314132, -4.047436, 0), App.Vector(5.499261, -3.175, 0)),
    Part.ArcOfCircle(Part.Circle(App.Vector(0, 0, 0), App.Vector(0, 0, 1), 6.35), math.radians(-30), math.radians(-22.762847)),
    Part.LineSegment(App.Vector(5.855425, -2.456928, 0), App.Vector(7.043095, -2.577753, 0)),
    Part.ArcOfCircle(Part.Circle(App.Vector(0, 0, 0), App.Vector(0, 0, 1), 7.5), math.radians(-32.660367), math.radians(-20.10248)),
], False)
sketch16.addConstraint([
    Sketcher.Constraint("Coincident", 0, 2, 1, 1),
    Sketcher.Constraint("Coincident", 1, 2, 2, 1),
    Sketcher.Constraint("Coincident", 2, 2, 3, 2),
    Sketcher.Constraint("Coincident", 3, 1, 0, 1),
    Sketcher.Constraint("Coincident", 1, 3, -1, 1),
    Sketcher.Constraint("Coincident", 3, 3, -1, 1),
    Sketcher.Constraint("Equal", 0, 2),
    Sketcher.Constraint("Radius", 3, Q("7.5 mm")),
    Sketcher.Constraint("Radius", 1, Q("6.35 mm")),
    Sketcher.Constraint("DistanceY", 0, 2, -1, 1, Q("3.175 mm")),
    Sketcher.Constraint("Distance", 0, Q("1.1938 mm")),
    Sketcher.Constraint("DistanceX", 1, 2, 2, 2, Q("1.18767 mm")),
])
pocket14 = body.newObject("PartDesign::Pocket", "Pocket013")
pocket14.Profile = sketch16
pocket14.Type = "UpToFirst"
pocket14.Reversed = True

sketch17 = body.newObject("Sketcher::SketchObject", "Sketch016")
sketch17.AttachmentSupport = (doc.getObject("XZ_Plane"), [""])
sketch17.MapMode = "FlatFace"
sketch17.AttachmentOffset = App.Placement(App.Vector(0, 0, -3), App.Rotation())
sketch17.addGeometry([
    Part.LineSegment(App.Vector(7.317648, -1.643785, 0), App.Vector(6.253529, -1.102666, 0)),
    Part.ArcOfCircle(Part.Circle(App.Vector(0, 0, 0), App.Vector(0, 0, 1), 6.35), math.radians(-10), math.radians(-2.762847)),
    Part.LineSegment(App.Vector(6.342619, -0.306083, 0), App.Vector(7.499988, -0.013415, 0)),
    Part.ArcOfCircle(Part.Circle(App.Vector(0, 0, 0), App.Vector(0, 0, 1), 7.5), math.radians(-12.660367), math.radians(-0.10248)),
], False)
sketch17.addConstraint([
    Sketcher.Constraint("Coincident", 0, 2, 1, 1),
    Sketcher.Constraint("Coincident", 1, 2, 2, 1),
    Sketcher.Constraint("Coincident", 2, 2, 3, 2),
    Sketcher.Constraint("Coincident", 3, 1, 0, 1),
    Sketcher.Constraint("Coincident", 1, 3, -1, 1),
    Sketcher.Constraint("Coincident", 3, 3, -1, 1),
    Sketcher.Constraint("Equal", 0, 2),
    Sketcher.Constraint("Radius", 3, Q("7.5 mm")),
    Sketcher.Constraint("Radius", 1, Q("6.35 mm")),
    Sketcher.Constraint("Distance", 0, Q("1.1938 mm")),
    Sketcher.Constraint("DistanceY", 3, 1, 1, 2, Q("1.337702 mm")),
    Sketcher.Constraint("DistanceX", -1, 1, 0, 2, Q("6.253529 mm")),
])
pocket15 = body.newObject("PartDesign::Pocket", "Pocket014")
pocket15.Profile = sketch17
pocket15.Type = "UpToFirst"
pocket15.Reversed = True

sketch18 = body.newObject("Sketcher::SketchObject", "Sketch017")
sketch18.AttachmentSupport = (doc.getObject("XZ_Plane"), [""])
sketch18.MapMode = "FlatFace"
sketch18.AttachmentOffset = App.Placement(App.Vector(0, 0, -3), App.Rotation())
sketch18.addGeometry([
    Part.LineSegment(App.Vector(7.438547, 0.95813, 0), App.Vector(6.253529, 1.102666, 0)),
    Part.ArcOfCircle(Part.Circle(App.Vector(0, 0, 0), App.Vector(0, 0, 1), 6.35), math.radians(10), math.radians(17.237153)),
    Part.LineSegment(App.Vector(6.064799, 1.881679, 0), App.Vector(7.052271, 2.552541, 0)),
    Part.ArcOfCircle(Part.Circle(App.Vector(0, 0, 0), App.Vector(0, 0, 1), 7.5), math.radians(7.339633), math.radians(19.89752)),
], False)
sketch18.addConstraint([
    Sketcher.Constraint("Coincident", 0, 2, 1, 1),
    Sketcher.Constraint("Coincident", 1, 2, 2, 1),
    Sketcher.Constraint("Coincident", 2, 2, 3, 2),
    Sketcher.Constraint("Coincident", 3, 1, 0, 1),
    Sketcher.Constraint("Coincident", 1, 3, -1, 1),
    Sketcher.Constraint("Coincident", 3, 3, -1, 1),
    Sketcher.Constraint("Equal", 0, 2),
    Sketcher.Constraint("Radius", 3, Q("7.5 mm")),
    Sketcher.Constraint("Radius", 1, Q("6.35 mm")),
    Sketcher.Constraint("Distance", 0, Q("1.1938 mm")),
    Sketcher.Constraint("DistanceX", -1, 1, 1, 2, Q("6.064799 mm")),
    Sketcher.Constraint("DistanceX", -1, 1, 0, 2, Q("6.253529 mm")),
])
pocket16 = body.newObject("PartDesign::Pocket", "Pocket015")
pocket16.Profile = sketch18
pocket16.Type = "UpToFirst"
pocket16.Reversed = True

sketch19 = body.newObject("Sketcher::SketchObject", "Sketch018")
sketch19.AttachmentSupport = (doc.getObject("XZ_Plane"), [""])
sketch19.MapMode = "FlatFace"
sketch19.AttachmentOffset = App.Placement(App.Vector(0, 0, -3), App.Rotation())
sketch19.addGeometry([
    Part.LineSegment(App.Vector(6.662248, 3.444481, 0), App.Vector(5.499261, 3.175, 0)),
    Part.ArcOfCircle(Part.Circle(App.Vector(0, 0, 0), App.Vector(0, 0, 1), 6.35), math.radians(30), math.radians(37.237153)),
    Part.LineSegment(App.Vector(5.055474, 3.842483, 0), App.Vector(5.753947, 4.810623, 0)),
    Part.ArcOfCircle(Part.Circle(App.Vector(0, 0, 0), App.Vector(0, 0, 1), 7.5), math.radians(27.339633), math.radians(39.89752)),
], False)
sketch19.addConstraint([
    Sketcher.Constraint("Coincident", 0, 2, 1, 1),
    Sketcher.Constraint("Coincident", 1, 2, 2, 1),
    Sketcher.Constraint("Coincident", 2, 2, 3, 2),
    Sketcher.Constraint("Coincident", 3, 1, 0, 1),
    Sketcher.Constraint("Coincident", 1, 3, -1, 1),
    Sketcher.Constraint("Coincident", 3, 3, -1, 1),
    Sketcher.Constraint("Equal", 0, 2),
    Sketcher.Constraint("Radius", 3, Q("7.5 mm")),
    Sketcher.Constraint("Radius", 1, Q("6.35 mm")),
    Sketcher.Constraint("DistanceY", -1, 1, 0, 2, Q("3.175 mm")),
    Sketcher.Constraint("Distance", 0, Q("1.1938 mm")),
    Sketcher.Constraint("DistanceX", 2, 2, 3, 1, Q("0.908301 mm")),
])
pocket17 = body.newObject("PartDesign::Pocket", "Pocket016")
pocket17.Profile = sketch19
pocket17.Type = "UpToFirst"
pocket17.Reversed = True

sketch20 = body.newObject("Sketcher::SketchObject", "Sketch019")
sketch20.AttachmentSupport = (doc.getObject("XZ_Plane"), [""])
sketch20.MapMode = "FlatFace"
sketch20.AttachmentOffset = App.Placement(App.Vector(0, 0, -3), App.Rotation())
sketch20.addGeometry([
    Part.LineSegment(App.Vector(5.082384, 5.515376, 0), App.Vector(4.081701, 4.864382, 0)),
    Part.ArcOfCircle(Part.Circle(App.Vector(0, 0, 0), App.Vector(0, 0, 1), 6.35), math.radians(50), math.radians(57.237153)),
    Part.LineSegment(App.Vector(3.436385, 5.339827, 0), App.Vector(3.761611, 6.488473, 0)),
    Part.ArcOfCircle(Part.Circle(App.Vector(0, 0, 0), App.Vector(0, 0, 1), 7.5), math.radians(47.339633), math.radians(59.89752)),
], False)
sketch20.addConstraint([
    Sketcher.Constraint("Coincident", 0, 2, 1, 1),
    Sketcher.Constraint("Coincident", 1, 2, 2, 1),
    Sketcher.Constraint("Coincident", 2, 2, 3, 2),
    Sketcher.Constraint("Coincident", 3, 1, 0, 1),
    Sketcher.Constraint("Coincident", 1, 3, -1, 1),
    Sketcher.Constraint("Coincident", 3, 3, -1, 1),
    Sketcher.Constraint("Equal", 0, 2),
    Sketcher.Constraint("Radius", 3, Q("7.5 mm")),
    Sketcher.Constraint("Radius", 1, Q("6.35 mm")),
    Sketcher.Constraint("DistanceX", 1, 2, 3, 1, Q("1.645998 mm")),
    Sketcher.Constraint("Distance", 0, Q("1.1938 mm")),
    Sketcher.Constraint("DistanceX", -1, 1, 0, 2, Q("4.081701 mm")),
])
pocket18 = body.newObject("PartDesign::Pocket", "Pocket017")
pocket18.Profile = sketch20
pocket18.Type = "UpToFirst"
pocket18.Reversed = True

sketch21 = body.newObject("Sketcher::SketchObject", "Sketch020")
sketch21.AttachmentSupport = (doc.getObject("XZ_Plane"), [""])
sketch21.MapMode = "FlatFace"
sketch21.AttachmentOffset = App.Placement(App.Vector(0, 0, -3), App.Rotation())
sketch21.addGeometry([
    Part.LineSegment(App.Vector(2.889508, 6.921036, 0), App.Vector(2.171828, 5.967048, 0)),
    Part.ArcOfCircle(Part.Circle(App.Vector(0, 0, 0), App.Vector(0, 0, 1), 6.35), math.radians(70), math.radians(77.237153)),
    Part.LineSegment(App.Vector(1.402817, 6.193109, 0), App.Vector(1.31557, 7.383717, 0)),
    Part.ArcOfCircle(Part.Circle(App.Vector(0, 0, 0), App.Vector(0, 0, 1), 7.5), math.radians(67.339633), math.radians(79.89752)),
], False)
sketch21.addConstraint([
    Sketcher.Constraint("Coincident", 0, 2, 1, 1),
    Sketcher.Constraint("Coincident", 1, 2, 2, 1),
    Sketcher.Constraint("Coincident", 2, 2, 3, 2),
    Sketcher.Constraint("Coincident", 3, 1, 0, 1),
    Sketcher.Constraint("Coincident", 1, 3, -1, 1),
    Sketcher.Constraint("Coincident", 3, 3, -1, 1),
    Sketcher.Constraint("Equal", 0, 2),
    Sketcher.Constraint("Radius", 3, Q("7.5 mm")),
    Sketcher.Constraint("Radius", 1, Q("6.35 mm")),
    Sketcher.Constraint("Distance", 0, Q("1.1938 mm")),
    Sketcher.Constraint("DistanceY", -1, 1, 0, 2, Q("5.967048 mm")),
    Sketcher.Constraint("DistanceY", -1, 1, 1, 2, Q("6.193109 mm")),
])
pocket19 = body.newObject("PartDesign::Pocket", "Pocket018")
pocket19.Profile = sketch21
pocket19.Type = "UpToFirst"
pocket19.Reversed = True

doc.recompute()
